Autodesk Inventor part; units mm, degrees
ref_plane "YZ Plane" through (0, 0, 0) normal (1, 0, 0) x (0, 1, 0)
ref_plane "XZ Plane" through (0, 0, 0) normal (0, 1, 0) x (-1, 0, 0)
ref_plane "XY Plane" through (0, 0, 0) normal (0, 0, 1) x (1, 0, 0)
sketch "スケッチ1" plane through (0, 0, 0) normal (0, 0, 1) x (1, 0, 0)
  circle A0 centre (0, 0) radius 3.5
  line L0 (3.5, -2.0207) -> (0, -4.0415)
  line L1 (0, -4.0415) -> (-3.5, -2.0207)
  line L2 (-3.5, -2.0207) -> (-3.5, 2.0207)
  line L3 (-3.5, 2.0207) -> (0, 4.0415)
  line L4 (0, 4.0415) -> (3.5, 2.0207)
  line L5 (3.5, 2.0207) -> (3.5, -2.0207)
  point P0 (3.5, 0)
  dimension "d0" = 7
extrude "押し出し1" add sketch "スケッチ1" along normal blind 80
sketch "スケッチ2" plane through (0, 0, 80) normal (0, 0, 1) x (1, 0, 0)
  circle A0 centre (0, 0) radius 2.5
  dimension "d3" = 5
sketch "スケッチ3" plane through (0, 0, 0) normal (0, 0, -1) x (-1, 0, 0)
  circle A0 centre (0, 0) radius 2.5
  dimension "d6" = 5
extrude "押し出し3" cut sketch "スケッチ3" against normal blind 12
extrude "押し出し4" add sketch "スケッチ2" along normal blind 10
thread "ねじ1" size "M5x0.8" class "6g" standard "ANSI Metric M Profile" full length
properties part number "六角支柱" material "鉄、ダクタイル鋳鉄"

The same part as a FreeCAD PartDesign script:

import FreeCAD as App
import Part
import Sketcher
from FreeCAD import Vector
Q = App.Units.Quantity

doc = App.newDocument("Part")
body = doc.addObject("PartDesign::Body", "Body")

# Sketch on XY plane
sketch1 = body.newObject("Sketcher::SketchObject", "Sketch")
sketch1.AttachmentSupport = (doc.getObject("XY_Plane"), [""])
sketch1.MapMode = "FlatFace"
sketch1.addGeometry([
    Part.LineSegment(Vector(3.5, -2, 0), Vector(3.5, 2, 0)),  # 0
    Part.LineSegment(Vector(3.5, 2, 0), Vector(0, 4, 0)),  # 1
    Part.LineSegment(Vector(0, 4, 0), Vector(-3.5, 2, 0)),  # 2
    Part.LineSegment(Vector(-3.5, 2, 0), Vector(-3.5, -2, 0)),  # 3
    Part.LineSegment(Vector(-3.5, -2, 0), Vector(0, -4, 0)),  # 4
    Part.LineSegment(Vector(0, -4, 0), Vector(3.5, -2, 0)),  # 5
], False)
sketch1.addConstraint([
    Sketcher.Constraint("Coincident", 0, 2, 1, 1),
    Sketcher.Constraint("Coincident", 1, 2, 2, 1),
    Sketcher.Constraint("Coincident", 2, 2, 3, 1),
    Sketcher.Constraint("Coincident", 3, 2, 4, 1),
    Sketcher.Constraint("Coincident", 4, 2, 5, 1),
    Sketcher.Constraint("Coincident", 5, 2, 0, 1),
    Sketcher.Constraint("Vertical", 0),
    Sketcher.Constraint("Vertical", 3),
    Sketcher.Constraint("Symmetric", 0, 2, 3, 2, -1, 1),
    Sketcher.Constraint("Symmetric", 1, 2, 4, 2, -1, 1),
    Sketcher.Constraint("PointOnObject", 1, 2, -2),
    Sketcher.Constraint("Parallel", 2, 5),
    Sketcher.Constraint("Horizontal", 0, 2, 2, 2),
    Sketcher.Constraint("DistanceX", 2, 2, 0, 2, Q("7 mm")),
    Sketcher.Constraint("Angle", 1, Q("149.999 deg")),
    Sketcher.Constraint("DistanceY", 0, 1, 0, 2, Q("4.0414 mm")),
])
pad1 = body.newObject("PartDesign::Pad", "Pad")
pad1.Profile = sketch1
pad1.Length = 80

# Sketch on XY plane
sketch2 = body.newObject("Sketcher::SketchObject", "Sketch001")
sketch2.AttachmentSupport = (doc.getObject("XY_Plane"), [""])
sketch2.MapMode = "FlatFace"
sketch2.addGeometry(Part.Circle(Vector(0, 0, 0), Vector(0, 0, 1), 2.5), False)
sketch2.addConstraint([
    Sketcher.Constraint("Coincident", 0, 3, -1, 1),
    Sketcher.Constraint("Diameter", 0, Q("5 mm")),
])
pocket1 = body.newObject("PartDesign::Pocket", "Pocket")
pocket1.Profile = sketch2
pocket1.Length = 12
pocket1.Reversed = True

# Sketch on XY plane
sketch3 = body.newObject("Sketcher::SketchObject", "Sketch002")
sketch3.AttachmentSupport = (doc.getObject("XY_Plane"), [""])
sketch3.MapMode = "FlatFace"
sketch3.AttachmentOffset = App.Placement(Vector(0, 0, 80), App.Rotation())
sketch3.addGeometry(Part.Circle(Vector(0, 0, 0), Vector(0, 0, 1), 2.5), False)
sketch3.addConstraint([
    Sketcher.Constraint("Coincident", 0, 3, -1, 1),
    Sketcher.Constraint("Diameter", 0, Q("5 mm")),
])
pad2 = body.newObject("PartDesign::Pad", "Pad001")
pad2.Profile = sketch3
pad2.Length = 10

doc.recompute()
